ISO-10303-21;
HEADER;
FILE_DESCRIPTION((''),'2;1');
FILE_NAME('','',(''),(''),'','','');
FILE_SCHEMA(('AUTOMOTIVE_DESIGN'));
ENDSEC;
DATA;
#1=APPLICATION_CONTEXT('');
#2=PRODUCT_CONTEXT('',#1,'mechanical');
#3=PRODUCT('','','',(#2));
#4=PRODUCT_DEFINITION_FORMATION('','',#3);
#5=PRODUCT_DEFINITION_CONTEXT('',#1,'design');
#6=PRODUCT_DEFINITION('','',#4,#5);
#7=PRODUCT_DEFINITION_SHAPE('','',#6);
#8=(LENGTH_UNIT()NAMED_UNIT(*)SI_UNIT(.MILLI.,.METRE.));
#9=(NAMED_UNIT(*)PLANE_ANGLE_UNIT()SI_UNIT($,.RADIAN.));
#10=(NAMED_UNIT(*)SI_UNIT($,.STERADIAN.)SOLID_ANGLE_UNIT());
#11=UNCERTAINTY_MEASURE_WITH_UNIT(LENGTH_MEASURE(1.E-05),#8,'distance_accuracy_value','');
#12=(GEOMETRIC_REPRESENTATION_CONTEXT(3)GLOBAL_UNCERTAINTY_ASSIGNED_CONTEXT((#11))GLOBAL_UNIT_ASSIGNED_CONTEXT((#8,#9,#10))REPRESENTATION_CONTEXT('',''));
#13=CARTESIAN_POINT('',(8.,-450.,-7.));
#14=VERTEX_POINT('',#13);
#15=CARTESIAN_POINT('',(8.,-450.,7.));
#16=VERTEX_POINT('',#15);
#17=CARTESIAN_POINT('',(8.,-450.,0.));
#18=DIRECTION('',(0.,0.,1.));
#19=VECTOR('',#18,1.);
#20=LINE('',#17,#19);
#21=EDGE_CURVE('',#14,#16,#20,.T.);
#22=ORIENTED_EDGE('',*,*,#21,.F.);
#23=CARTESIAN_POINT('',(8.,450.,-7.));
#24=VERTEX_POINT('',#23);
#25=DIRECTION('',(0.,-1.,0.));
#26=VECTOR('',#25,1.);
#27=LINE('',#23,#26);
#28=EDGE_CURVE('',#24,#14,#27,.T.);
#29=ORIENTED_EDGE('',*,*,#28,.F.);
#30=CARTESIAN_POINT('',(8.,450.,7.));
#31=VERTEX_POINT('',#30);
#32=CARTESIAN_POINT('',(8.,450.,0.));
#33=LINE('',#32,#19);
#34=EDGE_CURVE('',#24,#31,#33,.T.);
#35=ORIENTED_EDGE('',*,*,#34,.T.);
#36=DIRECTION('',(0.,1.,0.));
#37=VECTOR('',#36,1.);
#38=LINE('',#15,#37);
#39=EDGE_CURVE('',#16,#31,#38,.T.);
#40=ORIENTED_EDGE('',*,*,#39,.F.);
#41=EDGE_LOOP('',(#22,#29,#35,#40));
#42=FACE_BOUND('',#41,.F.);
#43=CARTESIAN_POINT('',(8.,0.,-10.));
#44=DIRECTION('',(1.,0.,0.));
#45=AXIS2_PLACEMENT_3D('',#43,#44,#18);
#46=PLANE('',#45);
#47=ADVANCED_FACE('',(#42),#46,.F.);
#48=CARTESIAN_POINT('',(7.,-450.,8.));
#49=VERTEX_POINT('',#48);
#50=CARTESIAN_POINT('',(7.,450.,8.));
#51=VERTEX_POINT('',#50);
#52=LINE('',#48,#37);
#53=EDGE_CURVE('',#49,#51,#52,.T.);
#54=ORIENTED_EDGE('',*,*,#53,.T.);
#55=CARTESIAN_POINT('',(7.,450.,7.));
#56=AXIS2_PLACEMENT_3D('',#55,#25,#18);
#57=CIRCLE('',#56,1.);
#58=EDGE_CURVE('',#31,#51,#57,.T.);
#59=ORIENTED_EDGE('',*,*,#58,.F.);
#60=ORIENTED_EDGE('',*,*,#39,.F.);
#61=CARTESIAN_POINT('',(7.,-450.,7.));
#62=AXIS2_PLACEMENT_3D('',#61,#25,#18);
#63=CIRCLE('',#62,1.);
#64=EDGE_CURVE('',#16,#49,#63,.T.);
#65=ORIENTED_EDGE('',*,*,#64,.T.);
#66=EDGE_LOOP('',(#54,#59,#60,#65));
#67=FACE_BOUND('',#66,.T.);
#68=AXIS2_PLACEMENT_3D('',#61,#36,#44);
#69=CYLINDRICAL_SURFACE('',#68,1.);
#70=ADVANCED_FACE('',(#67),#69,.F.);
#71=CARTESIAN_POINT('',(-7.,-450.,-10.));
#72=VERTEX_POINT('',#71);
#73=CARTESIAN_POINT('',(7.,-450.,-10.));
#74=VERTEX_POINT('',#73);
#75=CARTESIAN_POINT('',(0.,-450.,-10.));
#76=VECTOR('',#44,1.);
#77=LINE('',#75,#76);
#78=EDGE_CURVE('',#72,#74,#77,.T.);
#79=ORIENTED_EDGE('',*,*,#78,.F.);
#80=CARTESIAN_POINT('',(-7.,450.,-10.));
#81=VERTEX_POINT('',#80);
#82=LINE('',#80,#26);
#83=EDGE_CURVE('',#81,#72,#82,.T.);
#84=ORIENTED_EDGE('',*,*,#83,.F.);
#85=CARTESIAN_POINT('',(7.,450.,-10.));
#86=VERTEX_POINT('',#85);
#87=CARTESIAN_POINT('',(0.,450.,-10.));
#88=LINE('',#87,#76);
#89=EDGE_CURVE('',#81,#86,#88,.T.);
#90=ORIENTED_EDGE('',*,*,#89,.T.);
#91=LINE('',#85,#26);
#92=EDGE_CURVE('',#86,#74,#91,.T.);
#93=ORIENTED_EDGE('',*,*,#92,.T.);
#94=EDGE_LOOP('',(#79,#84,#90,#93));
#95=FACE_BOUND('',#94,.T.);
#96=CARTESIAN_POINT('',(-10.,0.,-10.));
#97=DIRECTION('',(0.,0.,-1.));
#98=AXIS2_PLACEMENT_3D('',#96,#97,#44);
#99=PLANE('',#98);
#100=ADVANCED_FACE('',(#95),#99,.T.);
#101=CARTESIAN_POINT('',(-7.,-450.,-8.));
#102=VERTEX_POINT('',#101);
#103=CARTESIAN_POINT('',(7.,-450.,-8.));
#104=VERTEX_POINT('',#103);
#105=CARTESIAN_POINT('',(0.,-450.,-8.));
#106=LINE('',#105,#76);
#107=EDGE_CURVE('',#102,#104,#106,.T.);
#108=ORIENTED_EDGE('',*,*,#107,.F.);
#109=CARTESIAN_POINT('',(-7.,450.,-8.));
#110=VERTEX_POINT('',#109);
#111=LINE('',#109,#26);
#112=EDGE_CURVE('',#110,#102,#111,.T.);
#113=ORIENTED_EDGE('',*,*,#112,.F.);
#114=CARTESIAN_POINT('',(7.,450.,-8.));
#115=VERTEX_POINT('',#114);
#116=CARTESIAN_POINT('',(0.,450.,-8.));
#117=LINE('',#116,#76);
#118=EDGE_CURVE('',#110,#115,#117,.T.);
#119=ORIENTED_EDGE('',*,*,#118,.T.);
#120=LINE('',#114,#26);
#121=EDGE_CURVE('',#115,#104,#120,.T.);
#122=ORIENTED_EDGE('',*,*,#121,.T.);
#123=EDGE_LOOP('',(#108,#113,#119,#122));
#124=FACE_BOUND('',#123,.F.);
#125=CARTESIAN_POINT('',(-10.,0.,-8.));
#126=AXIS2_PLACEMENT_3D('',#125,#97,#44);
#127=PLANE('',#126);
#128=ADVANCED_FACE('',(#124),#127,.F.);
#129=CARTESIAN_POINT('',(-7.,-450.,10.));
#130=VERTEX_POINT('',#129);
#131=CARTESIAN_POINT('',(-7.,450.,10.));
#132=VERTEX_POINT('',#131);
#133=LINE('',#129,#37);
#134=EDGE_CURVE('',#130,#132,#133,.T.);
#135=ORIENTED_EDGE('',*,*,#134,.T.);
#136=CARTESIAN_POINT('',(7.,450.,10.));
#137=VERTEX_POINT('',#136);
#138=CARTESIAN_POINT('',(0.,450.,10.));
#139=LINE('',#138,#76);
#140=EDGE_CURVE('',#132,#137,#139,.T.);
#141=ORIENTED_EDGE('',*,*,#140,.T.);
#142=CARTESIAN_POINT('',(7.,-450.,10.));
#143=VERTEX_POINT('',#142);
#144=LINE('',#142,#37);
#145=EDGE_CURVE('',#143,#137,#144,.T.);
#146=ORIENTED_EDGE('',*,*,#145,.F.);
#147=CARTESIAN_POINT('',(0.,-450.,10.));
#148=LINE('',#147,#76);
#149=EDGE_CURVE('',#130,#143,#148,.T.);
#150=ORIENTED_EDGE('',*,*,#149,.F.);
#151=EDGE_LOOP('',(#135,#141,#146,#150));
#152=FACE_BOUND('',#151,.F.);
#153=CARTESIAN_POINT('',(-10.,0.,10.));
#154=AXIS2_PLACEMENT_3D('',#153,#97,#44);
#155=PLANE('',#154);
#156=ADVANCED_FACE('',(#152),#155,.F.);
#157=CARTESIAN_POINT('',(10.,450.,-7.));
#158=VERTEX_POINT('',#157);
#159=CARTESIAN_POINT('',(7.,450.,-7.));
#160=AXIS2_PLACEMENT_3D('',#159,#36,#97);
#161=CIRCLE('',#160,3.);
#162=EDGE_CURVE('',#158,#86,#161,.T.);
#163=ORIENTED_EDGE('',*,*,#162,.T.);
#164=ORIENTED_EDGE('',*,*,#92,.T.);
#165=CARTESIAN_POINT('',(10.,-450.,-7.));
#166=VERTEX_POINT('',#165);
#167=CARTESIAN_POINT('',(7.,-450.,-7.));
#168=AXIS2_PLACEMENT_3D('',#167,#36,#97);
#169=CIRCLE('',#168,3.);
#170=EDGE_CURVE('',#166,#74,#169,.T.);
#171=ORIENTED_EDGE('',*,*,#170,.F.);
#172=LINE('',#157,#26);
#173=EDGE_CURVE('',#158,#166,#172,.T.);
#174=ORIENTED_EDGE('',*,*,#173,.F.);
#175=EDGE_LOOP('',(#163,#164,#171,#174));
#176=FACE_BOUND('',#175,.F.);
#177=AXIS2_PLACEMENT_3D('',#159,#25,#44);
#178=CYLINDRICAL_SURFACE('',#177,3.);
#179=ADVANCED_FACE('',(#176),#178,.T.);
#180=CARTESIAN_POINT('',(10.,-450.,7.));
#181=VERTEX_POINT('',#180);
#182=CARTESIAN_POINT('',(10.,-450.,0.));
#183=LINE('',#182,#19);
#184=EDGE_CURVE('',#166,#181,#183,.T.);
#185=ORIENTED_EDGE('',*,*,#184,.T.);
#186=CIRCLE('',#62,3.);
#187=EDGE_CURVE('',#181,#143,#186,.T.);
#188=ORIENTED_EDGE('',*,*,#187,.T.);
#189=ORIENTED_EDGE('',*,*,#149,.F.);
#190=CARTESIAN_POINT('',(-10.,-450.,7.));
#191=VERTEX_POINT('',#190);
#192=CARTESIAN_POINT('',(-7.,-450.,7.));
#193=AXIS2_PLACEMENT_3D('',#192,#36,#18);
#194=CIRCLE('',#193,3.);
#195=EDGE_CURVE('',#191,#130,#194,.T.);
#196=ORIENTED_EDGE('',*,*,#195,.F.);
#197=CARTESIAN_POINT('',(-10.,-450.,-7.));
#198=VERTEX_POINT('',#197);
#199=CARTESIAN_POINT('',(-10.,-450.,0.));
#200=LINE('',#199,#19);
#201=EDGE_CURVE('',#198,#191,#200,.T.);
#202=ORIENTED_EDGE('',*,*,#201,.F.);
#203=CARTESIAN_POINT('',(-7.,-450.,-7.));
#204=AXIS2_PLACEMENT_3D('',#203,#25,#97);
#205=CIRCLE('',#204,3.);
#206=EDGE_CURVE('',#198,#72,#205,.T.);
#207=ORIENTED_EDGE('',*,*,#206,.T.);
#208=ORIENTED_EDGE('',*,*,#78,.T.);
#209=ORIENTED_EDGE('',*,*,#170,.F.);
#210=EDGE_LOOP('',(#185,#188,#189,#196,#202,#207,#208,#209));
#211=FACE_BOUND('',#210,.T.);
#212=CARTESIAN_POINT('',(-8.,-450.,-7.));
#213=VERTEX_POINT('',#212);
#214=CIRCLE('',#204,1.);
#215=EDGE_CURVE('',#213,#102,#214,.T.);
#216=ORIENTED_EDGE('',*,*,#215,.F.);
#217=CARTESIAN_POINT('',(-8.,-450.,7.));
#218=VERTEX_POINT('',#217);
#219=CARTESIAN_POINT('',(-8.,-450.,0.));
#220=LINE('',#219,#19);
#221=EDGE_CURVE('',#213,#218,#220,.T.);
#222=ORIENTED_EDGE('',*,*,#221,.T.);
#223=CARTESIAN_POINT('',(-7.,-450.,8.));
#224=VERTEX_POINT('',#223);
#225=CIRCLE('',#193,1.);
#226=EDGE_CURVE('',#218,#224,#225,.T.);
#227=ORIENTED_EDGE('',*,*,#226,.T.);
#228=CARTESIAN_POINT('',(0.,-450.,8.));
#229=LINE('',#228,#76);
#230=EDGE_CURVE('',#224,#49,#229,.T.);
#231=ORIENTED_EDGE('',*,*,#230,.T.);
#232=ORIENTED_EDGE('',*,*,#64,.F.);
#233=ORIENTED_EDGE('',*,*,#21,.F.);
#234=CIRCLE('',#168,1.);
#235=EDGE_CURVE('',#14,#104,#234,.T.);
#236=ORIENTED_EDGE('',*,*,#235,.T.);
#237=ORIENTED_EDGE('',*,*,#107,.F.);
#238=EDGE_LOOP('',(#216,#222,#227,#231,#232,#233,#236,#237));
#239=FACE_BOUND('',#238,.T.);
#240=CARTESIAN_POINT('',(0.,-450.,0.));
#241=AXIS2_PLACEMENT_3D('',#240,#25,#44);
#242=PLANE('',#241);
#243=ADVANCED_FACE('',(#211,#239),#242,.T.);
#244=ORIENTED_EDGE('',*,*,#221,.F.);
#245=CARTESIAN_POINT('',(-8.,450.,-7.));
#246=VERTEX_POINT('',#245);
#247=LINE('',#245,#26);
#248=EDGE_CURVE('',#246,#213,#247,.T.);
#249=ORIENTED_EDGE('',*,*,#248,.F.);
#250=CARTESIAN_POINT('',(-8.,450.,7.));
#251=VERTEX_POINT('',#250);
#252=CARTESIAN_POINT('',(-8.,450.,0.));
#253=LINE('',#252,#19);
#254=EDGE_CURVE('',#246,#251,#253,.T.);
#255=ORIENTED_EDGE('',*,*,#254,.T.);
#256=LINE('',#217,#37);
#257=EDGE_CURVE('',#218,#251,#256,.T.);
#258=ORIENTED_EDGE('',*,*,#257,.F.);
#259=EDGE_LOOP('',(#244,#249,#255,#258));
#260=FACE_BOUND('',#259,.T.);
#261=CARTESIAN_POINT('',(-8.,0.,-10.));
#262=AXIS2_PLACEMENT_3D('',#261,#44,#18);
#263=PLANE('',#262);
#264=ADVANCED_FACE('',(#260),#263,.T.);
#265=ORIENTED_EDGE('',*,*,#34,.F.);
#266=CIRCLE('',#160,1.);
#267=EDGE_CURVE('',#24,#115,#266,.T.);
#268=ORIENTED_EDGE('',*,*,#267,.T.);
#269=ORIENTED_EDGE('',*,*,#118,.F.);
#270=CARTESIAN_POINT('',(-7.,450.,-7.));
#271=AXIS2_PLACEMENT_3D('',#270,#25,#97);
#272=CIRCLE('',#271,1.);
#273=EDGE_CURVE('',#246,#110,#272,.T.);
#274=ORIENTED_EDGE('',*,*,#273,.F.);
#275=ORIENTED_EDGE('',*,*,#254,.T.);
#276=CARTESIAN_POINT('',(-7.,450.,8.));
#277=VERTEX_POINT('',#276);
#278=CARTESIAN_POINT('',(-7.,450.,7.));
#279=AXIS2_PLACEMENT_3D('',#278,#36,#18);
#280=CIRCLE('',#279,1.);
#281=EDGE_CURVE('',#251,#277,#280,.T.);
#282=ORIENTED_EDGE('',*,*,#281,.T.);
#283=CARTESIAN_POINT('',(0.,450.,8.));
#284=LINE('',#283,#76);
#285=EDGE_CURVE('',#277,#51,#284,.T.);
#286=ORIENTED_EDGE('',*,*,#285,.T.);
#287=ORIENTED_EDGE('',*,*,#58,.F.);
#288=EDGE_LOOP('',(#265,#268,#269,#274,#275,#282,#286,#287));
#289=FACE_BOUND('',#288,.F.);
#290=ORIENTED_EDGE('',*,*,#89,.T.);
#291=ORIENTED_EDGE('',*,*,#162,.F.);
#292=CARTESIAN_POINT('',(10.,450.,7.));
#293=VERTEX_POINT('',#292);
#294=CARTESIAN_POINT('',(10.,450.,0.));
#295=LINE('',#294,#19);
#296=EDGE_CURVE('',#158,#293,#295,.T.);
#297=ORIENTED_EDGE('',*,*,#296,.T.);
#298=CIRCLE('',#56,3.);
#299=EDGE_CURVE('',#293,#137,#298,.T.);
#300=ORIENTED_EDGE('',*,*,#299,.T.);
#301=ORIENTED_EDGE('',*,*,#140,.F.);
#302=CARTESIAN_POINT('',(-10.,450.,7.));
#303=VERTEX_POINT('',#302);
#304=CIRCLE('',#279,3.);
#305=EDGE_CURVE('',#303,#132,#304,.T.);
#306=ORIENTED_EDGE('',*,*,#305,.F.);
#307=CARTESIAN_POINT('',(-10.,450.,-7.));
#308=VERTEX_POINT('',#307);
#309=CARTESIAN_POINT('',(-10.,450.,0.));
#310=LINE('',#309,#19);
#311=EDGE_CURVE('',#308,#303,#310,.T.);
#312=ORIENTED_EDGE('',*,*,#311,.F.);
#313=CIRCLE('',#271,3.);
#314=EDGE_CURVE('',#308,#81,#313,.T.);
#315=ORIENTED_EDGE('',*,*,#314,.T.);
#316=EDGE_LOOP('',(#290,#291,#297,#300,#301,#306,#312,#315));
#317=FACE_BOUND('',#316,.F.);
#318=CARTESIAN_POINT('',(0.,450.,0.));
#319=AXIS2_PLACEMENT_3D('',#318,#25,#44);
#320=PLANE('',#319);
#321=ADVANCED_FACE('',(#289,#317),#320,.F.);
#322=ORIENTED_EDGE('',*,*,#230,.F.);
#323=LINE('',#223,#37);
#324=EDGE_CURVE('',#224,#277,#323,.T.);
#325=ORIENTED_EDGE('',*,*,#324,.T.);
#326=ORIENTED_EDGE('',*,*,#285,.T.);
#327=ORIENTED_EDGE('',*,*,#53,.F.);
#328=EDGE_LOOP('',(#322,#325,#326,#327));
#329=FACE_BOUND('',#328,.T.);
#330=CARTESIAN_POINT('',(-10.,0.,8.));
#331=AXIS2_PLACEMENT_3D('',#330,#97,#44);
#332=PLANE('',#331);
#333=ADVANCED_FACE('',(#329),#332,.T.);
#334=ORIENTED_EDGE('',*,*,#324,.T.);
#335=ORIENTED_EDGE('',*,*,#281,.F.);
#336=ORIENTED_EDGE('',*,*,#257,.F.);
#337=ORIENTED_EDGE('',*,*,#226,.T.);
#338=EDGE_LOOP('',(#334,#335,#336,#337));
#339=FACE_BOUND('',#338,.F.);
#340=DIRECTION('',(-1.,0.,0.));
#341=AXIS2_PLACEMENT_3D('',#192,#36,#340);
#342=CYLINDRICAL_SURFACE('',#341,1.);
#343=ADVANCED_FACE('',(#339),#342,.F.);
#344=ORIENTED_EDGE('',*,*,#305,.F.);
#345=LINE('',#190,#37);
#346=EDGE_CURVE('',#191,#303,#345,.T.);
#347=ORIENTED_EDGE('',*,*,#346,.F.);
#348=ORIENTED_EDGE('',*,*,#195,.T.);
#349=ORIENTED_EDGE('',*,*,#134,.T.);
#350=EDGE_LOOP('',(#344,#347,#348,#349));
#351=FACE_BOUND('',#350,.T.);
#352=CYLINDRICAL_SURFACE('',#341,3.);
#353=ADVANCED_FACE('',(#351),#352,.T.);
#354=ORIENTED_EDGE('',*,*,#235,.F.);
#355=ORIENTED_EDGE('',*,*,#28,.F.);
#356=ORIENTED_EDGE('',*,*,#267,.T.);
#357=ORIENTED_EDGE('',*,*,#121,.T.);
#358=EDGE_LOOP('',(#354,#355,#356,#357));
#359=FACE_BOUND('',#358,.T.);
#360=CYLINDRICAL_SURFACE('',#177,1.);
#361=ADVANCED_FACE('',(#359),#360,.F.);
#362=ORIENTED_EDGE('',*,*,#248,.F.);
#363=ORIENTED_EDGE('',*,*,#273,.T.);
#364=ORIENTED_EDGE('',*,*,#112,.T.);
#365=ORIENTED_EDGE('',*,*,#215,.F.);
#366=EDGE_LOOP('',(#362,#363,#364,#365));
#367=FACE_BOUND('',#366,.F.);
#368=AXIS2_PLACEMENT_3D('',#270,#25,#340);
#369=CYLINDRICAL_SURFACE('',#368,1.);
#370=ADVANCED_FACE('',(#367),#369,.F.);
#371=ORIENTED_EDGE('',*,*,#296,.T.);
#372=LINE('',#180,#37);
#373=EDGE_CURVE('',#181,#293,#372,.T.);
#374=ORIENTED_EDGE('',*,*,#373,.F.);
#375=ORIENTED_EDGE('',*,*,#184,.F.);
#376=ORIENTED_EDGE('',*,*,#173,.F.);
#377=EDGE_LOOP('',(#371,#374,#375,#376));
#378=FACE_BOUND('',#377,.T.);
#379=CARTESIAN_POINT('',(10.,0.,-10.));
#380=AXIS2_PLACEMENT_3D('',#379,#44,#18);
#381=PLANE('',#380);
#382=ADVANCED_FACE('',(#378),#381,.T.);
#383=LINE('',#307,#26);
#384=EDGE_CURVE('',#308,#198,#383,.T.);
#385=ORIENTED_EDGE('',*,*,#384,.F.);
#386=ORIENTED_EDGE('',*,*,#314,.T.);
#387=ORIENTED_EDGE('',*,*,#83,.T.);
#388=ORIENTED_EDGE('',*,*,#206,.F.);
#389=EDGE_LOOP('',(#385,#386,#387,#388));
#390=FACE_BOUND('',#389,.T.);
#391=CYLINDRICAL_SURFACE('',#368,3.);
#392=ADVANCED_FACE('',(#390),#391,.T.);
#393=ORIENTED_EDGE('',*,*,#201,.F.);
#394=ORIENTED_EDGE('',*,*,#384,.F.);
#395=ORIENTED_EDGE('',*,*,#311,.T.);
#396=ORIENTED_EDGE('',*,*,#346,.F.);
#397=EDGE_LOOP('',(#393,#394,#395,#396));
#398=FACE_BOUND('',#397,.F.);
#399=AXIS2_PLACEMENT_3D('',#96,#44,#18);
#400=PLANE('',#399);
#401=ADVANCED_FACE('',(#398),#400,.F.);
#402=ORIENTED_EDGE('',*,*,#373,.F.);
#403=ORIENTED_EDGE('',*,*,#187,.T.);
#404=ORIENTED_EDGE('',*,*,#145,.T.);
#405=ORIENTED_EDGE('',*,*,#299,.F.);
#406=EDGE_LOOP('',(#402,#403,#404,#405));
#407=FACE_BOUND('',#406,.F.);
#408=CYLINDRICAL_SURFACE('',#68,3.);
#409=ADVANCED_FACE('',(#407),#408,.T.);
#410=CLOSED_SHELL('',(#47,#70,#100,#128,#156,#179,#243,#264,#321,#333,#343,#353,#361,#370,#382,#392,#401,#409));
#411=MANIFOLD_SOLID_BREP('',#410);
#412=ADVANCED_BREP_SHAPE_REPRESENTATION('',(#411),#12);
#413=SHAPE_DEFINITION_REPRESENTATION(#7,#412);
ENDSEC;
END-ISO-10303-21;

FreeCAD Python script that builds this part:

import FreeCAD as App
import Part
import Sketcher


def edges_at(feature, points):
    """Names of the edges that pass closest to the given points."""
    edges = feature.Shape.Edges
    near = lambda p: min(range(len(edges)), key=lambda i: edges[i].distToShape(Part.Vertex(*p))[0])
    return sorted({f"Edge{near(p) + 1}" for p in points})


def faces_at(feature, points):
    """Names of the faces that lie closest to the given points."""
    faces = feature.Shape.Faces
    near = lambda p: min(range(len(faces)), key=lambda i: faces[i].distToShape(Part.Vertex(*p))[0])
    return sorted({f"Face{near(p) + 1}" for p in points})

doc = App.newDocument("Part")
params = doc.addObject("Spreadsheet::Sheet", "Params")
for row, (alias, value) in enumerate([
    ("sketch1_width", "20 mm"),
    ("pad1_length", "900 mm"),
    ("fillet_radius", "3 mm"),
    ("thickness_wall", "2 mm"),
], start=1):
    params.set(f"A{row}", alias)
    params.set(f"B{row}", "=" + value)
    params.setAlias(f"B{row}", alias)

body = doc.addObject("PartDesign::Body", "Body")

sketch1 = body.newObject("Sketcher::SketchObject", "Sketch")
sketch1.AttachmentSupport = (doc.getObject("XZ_Plane"), [""])
sketch1.MapMode = "FlatFace"
sketch1.addGeometry(Part.LineSegment(App.Vector(-10, 10, 0), App.Vector(-10, -10, 0)), False)
sketch1.addGeometry(Part.LineSegment(App.Vector(-10, -10, 0), App.Vector(10, -10, 0)), False)
sketch1.addGeometry(Part.LineSegment(App.Vector(10, -10, 0), App.Vector(10, 10, 0)), False)
sketch1.addGeometry(Part.LineSegment(App.Vector(10, 10, 0), App.Vector(-10, 10, 0)), False)
sketch1.addConstraint(Sketcher.Constraint("Coincident", 0, 2, 1, 1))
sketch1.addConstraint(Sketcher.Constraint("Coincident", 1, 2, 2, 1))
sketch1.addConstraint(Sketcher.Constraint("Coincident", 2, 2, 3, 1))
sketch1.addConstraint(Sketcher.Constraint("Coincident", 3, 2, 0, 1))
sketch1.addConstraint(Sketcher.Constraint("Vertical", 0))
sketch1.addConstraint(Sketcher.Constraint("Horizontal", 1))
sketch1.addConstraint(Sketcher.Constraint("Vertical", 2))
sketch1.addConstraint(Sketcher.Constraint("Horizontal", 3))
sketch1.addConstraint(Sketcher.Constraint("Symmetric", 0, 2, 2, 2, -1, 1))
sketch1.addConstraint(Sketcher.Constraint("Equal", 3, 0))
sketch1.addConstraint(Sketcher.Constraint("DistanceX", 1, 1, 1, 2, 20.0))
sketch1.setExpression("Constraints[10]", "Params.sketch1_width")
pad1 = body.newObject("PartDesign::Pad", "Pad")
pad1.Profile = sketch1
pad1.setExpression("Length", "Params.pad1_length")
pad1.Midplane = True
doc.recompute()

fillet = body.newObject("PartDesign::Fillet", "Fillet")
fillet.Base = (pad1, edges_at(pad1, [
    (10, 0, 10),
    (-10, 0, 10),
    (10, 0, -10),
    (-10, 0, -10),
]))
fillet.setExpression("Radius", "Params.fillet_radius")
doc.recompute()

thickness = body.newObject("PartDesign::Thickness", "Thickness")
thickness.Base = (fillet, faces_at(fillet, [(0, -450, 0), (0, 450, 0)]))
thickness.setExpression("Value", "Params.thickness_wall")
thickness.Reversed = True
thickness.Join = "Arc"

doc.recompute()
